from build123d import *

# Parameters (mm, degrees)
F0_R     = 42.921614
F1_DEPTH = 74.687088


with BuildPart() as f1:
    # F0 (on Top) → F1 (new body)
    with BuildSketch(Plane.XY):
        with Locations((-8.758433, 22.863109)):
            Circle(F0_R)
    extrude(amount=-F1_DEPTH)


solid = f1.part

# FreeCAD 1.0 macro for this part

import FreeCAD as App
import Part
import Sketcher

V = App.Vector

doc = App.newDocument("Part")
body = doc.addObject("PartDesign::Body", "Body")

# Sketch on XY plane
sketch1 = body.newObject("Sketcher::SketchObject", "Sketch")
sketch1.AttachmentSupport = (doc.getObject("XY_Plane"), [""])
sketch1.MapMode = "FlatFace"
sketch1.addGeometry(Part.Circle(V(-8.758433, 22.863109, 0), V(0, 0, 1), 42.921614), False)
sketch1.addConstraint([
    Sketcher.Constraint("Diameter", 0, 85.843228),
    Sketcher.Constraint("DistanceY", -1, 1, 0, 3, 22.863109),
    Sketcher.Constraint("DistanceX", 0, 3, -1, 1, 8.758433),
])
pad1 = body.newObject("PartDesign::Pad", "Pad")
pad1.Profile = sketch1
pad1.Length = 74.687088
pad1.Reversed = True

doc.recompute()
